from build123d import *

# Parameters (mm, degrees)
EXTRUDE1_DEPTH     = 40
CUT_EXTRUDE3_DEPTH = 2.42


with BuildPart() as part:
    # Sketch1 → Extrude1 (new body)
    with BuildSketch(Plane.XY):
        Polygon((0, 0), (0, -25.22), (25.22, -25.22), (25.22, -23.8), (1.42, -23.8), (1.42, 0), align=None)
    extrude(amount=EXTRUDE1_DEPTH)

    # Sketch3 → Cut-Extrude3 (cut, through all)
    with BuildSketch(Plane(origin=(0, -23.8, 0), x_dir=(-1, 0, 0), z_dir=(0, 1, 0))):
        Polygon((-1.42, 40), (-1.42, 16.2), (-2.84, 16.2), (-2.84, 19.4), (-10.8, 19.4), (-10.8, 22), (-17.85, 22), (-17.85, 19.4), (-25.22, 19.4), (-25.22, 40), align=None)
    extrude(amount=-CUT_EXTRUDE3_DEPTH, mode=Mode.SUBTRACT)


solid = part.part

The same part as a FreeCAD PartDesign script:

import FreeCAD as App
import Part
import Sketcher

V = App.Vector
Q = App.Units.Quantity


def add_polygon(sketch, points):
    """Adds a closed chain of lines whose ends are joined by coincident constraints."""
    first, n = sketch.GeometryCount, len(points)
    for a, b in zip(points, points[1:] + points[:1]):
        sketch.addGeometry(Part.LineSegment(App.Vector(*a, 0), App.Vector(*b, 0)), False)
    for i in range(n):
        sketch.addConstraint(Sketcher.Constraint("Coincident", first + i, 2, first + (i + 1) % n, 1))

doc = App.newDocument("Part")
params = doc.addObject("Spreadsheet::Sheet", "Params")
for row, (alias, value) in enumerate([
    ("sketch1_width", "23.8 mm"),
    ("sketch1_width2", "25.22 mm"),
    ("pad1_length", "40 mm"),
    ("sketch2_width", "23.8 mm"),
    ("sketch2_height", "20.6 mm"),
    ("sketch2_height2", "2.6 mm"),
    ("sketch2_width2", "7.37 mm"),
    ("sketch2_width3", "7.05 mm"),
], start=1):
    params.set(f"A{row}", alias)
    params.set(f"B{row}", "=" + value)
    params.setAlias(f"B{row}", alias)

body = doc.addObject("PartDesign::Body", "Body")

# Sketch on XY plane
sketch1 = doc.addObject("Sketcher::SketchObject", "Sketch")
body.addObject(sketch1)
sketch1.AttachmentSupport = (doc.XY_Plane, [""])
sketch1.MapMode = "FlatFace"
add_polygon(sketch1, [(0, 0), (0, -25.22), (25.22, -25.22), (25.22, -23.8), (1.42, -23.8), (1.42, 0)])  # lines 0-5
sketch1.addConstraint(Sketcher.Constraint("Vertical", 0))
sketch1.addConstraint(Sketcher.Constraint("Horizontal", 1))
sketch1.addConstraint(Sketcher.Constraint("Vertical", 2))
sketch1.addConstraint(Sketcher.Constraint("Horizontal", 3))
sketch1.addConstraint(Sketcher.Constraint("Vertical", 4))
sketch1.addConstraint(Sketcher.Constraint("Horizontal", 5))
sketch1.addConstraint(Sketcher.Constraint("Coincident", 5, 2, -1, 1))
sketch1.addConstraint(Sketcher.Constraint("Equal", 1, 0))
sketch1.addConstraint(Sketcher.Constraint("Equal", 5, 2))
sketch1.addConstraint(Sketcher.Constraint("DistanceX", 3, 2, 3, 1, Q("23.8 mm")))
sketch1.addConstraint(Sketcher.Constraint("DistanceX", 1, 1, 1, 2, Q("25.22 mm")))
sketch1.setExpression("Constraints[15]", "Params.sketch1_width")
sketch1.setExpression("Constraints[16]", "Params.sketch1_width2")
pad1 = doc.addObject("PartDesign::Pad", "Pad")
body.addObject(pad1)
pad1.Profile = sketch1
pad1.setExpression("Length", "Params.pad1_length")

# Sketch on XZ plane
sketch2 = doc.addObject("Sketcher::SketchObject", "Sketch001")
body.addObject(sketch2)
sketch2.AttachmentSupport = (doc.XZ_Plane, [""])
sketch2.MapMode = "FlatFace"
sketch2.AttachmentOffset = App.Placement(V(0, 0, 23.8), App.Rotation())
add_polygon(sketch2, [(1.42, 16.2), (1.42, 40), (25.22, 40), (25.22, 19.4), (17.85, 19.4), (17.85, 22), (10.8, 22), (10.8, 19.4), (2.84, 19.4), (2.84, 16.2)])  # lines 0-9
sketch2.addConstraint(Sketcher.Constraint("Vertical", 0))
sketch2.addConstraint(Sketcher.Constraint("Horizontal", 1))
sketch2.addConstraint(Sketcher.Constraint("Vertical", 2))
sketch2.addConstraint(Sketcher.Constraint("Horizontal", 3))
sketch2.addConstraint(Sketcher.Constraint("Vertical", 4))
sketch2.addConstraint(Sketcher.Constraint("Horizontal", 5))
sketch2.addConstraint(Sketcher.Constraint("Vertical", 6))
sketch2.addConstraint(Sketcher.Constraint("Horizontal", 7))
sketch2.addConstraint(Sketcher.Constraint("Vertical", 8))
sketch2.addConstraint(Sketcher.Constraint("Horizontal", 9))
sketch2.addConstraint(Sketcher.Constraint("Horizontal", 3, 2, 6, 2))
sketch2.addConstraint(Sketcher.Constraint("Equal", 1, 0))
sketch2.addConstraint(Sketcher.Constraint("DistanceX", 1, 1, 1, 2, Q("23.8 mm")))
sketch2.addConstraint(Sketcher.Constraint("DistanceY", 2, 2, 2, 1, Q("20.6 mm")))
sketch2.addConstraint(Sketcher.Constraint("DistanceY", 4, 1, 4, 2, Q("2.6 mm")))
sketch2.addConstraint(Sketcher.Constraint("DistanceY", -1, 1, 0, 2, Q("40 mm")))
sketch2.addConstraint(Sketcher.Constraint("DistanceX", 3, 2, 3, 1, Q("7.37 mm")))
sketch2.addConstraint(Sketcher.Constraint("DistanceX", 5, 2, 5, 1, Q("7.05 mm")))
sketch2.addConstraint(Sketcher.Constraint("DistanceX", 7, 2, 7, 1, Q("7.96 mm")))
sketch2.addConstraint(Sketcher.Constraint("DistanceX", -1, 1, 5, 2, Q("10.8 mm")))
sketch2.setExpression("Constraints[22]", "Params.sketch2_width")
sketch2.setExpression("Constraints[23]", "Params.sketch2_height")
sketch2.setExpression("Constraints[24]", "Params.sketch2_height2")
sketch2.setExpression("Constraints[26]", "Params.sketch2_width2")
sketch2.setExpression("Constraints[27]", "Params.sketch2_width3")
pocket1 = doc.addObject("PartDesign::Pocket", "Pocket")
body.addObject(pocket1)
pocket1.Profile = sketch2
pocket1.Type = "ThroughAll"
pocket1.Reversed = True

doc.recompute()
